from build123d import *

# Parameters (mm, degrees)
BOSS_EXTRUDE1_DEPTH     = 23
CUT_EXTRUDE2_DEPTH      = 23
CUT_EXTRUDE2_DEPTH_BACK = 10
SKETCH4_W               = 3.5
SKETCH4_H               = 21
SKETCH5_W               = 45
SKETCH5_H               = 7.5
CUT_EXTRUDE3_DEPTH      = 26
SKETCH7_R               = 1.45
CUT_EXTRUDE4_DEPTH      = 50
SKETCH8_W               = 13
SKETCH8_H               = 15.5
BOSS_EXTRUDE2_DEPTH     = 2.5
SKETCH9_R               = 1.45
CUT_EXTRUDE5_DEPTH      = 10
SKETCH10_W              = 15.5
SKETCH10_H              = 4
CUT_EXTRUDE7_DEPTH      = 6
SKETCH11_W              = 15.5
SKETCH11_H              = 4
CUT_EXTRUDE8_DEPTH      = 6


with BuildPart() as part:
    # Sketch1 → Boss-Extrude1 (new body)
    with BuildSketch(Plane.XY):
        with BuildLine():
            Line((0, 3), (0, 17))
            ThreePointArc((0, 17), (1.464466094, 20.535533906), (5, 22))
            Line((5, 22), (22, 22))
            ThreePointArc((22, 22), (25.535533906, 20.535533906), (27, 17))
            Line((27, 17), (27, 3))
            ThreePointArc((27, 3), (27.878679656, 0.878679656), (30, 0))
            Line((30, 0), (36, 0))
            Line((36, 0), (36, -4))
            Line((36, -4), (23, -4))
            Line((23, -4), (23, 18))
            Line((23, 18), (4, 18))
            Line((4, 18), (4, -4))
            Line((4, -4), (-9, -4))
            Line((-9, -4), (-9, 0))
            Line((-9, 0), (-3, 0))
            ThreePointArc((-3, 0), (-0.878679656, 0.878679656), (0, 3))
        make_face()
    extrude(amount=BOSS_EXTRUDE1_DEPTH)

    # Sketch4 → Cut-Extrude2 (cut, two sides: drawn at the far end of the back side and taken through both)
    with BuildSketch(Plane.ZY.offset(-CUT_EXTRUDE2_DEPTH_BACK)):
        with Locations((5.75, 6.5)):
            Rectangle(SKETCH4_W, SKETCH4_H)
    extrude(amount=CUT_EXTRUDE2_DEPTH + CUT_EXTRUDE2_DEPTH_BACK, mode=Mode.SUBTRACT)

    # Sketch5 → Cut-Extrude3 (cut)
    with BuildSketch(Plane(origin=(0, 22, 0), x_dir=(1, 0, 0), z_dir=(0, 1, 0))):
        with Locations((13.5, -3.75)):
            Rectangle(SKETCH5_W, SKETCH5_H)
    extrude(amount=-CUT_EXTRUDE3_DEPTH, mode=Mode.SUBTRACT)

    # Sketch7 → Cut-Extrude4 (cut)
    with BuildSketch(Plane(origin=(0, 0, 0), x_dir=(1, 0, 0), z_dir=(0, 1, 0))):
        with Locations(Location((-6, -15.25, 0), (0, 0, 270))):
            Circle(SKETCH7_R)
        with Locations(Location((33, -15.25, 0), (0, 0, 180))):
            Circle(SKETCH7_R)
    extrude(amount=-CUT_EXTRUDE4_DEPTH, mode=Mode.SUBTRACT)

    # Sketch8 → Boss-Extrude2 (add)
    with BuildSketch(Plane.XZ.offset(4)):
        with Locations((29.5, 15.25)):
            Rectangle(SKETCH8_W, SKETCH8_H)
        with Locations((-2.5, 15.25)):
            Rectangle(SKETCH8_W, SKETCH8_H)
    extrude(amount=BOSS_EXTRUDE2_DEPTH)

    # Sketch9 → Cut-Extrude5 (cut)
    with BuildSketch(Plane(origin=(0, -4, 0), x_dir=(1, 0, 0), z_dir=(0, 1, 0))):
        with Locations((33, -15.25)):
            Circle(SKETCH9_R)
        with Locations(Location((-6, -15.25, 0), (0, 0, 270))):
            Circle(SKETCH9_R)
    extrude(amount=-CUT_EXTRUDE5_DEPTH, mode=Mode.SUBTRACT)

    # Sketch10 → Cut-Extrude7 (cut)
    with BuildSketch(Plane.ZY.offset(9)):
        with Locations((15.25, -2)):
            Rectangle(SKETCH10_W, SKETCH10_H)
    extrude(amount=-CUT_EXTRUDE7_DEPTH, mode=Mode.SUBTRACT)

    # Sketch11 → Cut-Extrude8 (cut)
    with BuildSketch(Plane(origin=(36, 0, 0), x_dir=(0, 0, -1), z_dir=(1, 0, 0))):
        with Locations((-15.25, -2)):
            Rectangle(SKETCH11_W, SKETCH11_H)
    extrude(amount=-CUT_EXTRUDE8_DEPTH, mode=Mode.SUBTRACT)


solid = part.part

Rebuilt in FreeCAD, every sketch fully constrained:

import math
import FreeCAD as App
import Part
import Sketcher
from FreeCAD import Vector
Q = App.Units.Quantity

doc = App.newDocument("Part")
params = doc.addObject("Spreadsheet::Sheet", "Params")
for row, (alias, value) in enumerate([
    ("sketch1_radius", "3 mm"),
    ("sketch1_radius2", "5 mm"),
    ("sketch1_width", "6 mm"),
    ("sketch1_width2", "13 mm"),
    ("sketch1_width3", "19 mm"),
    ("pad1_length", "23 mm"),
    ("sketch2_width", "21 mm"),
    ("sketch2_height", "3.5 mm"),
    ("pocket1_length", "23 mm"),
    ("pocket1_length2", "10 mm"),
    ("sketch3_width", "45 mm"),
    ("sketch3_height", "7.5 mm"),
    ("pocket2_length", "26 mm"),
    ("sketch4_diameter", "2.9 mm"),
    ("pocket3_length", "50 mm"),
    ("sketch5_width", "13 mm"),
    ("sketch5_height", "15.5 mm"),
    ("pad2_length", "2.5 mm"),
    ("sketch6_diameter", "2.9 mm"),
    ("pocket4_length", "10 mm"),
    ("sketch7_width", "4 mm"),
    ("sketch7_height", "15.5 mm"),
    ("pocket5_length", "6 mm"),
    ("sketch8_width", "4 mm"),
    ("sketch8_height", "15.5 mm"),
    ("pocket6_length", "6 mm"),
], start=1):
    params.set(f"A{row}", alias)
    params.set(f"B{row}", "=" + value)
    params.setAlias(f"B{row}", alias)

body = doc.addObject("PartDesign::Body", "Body")

# Sketch on XY plane
sketch1 = body.newObject("Sketcher::SketchObject", "Sketch")
sketch1.AttachmentSupport = (doc.getObject("XY_Plane"), [""])
sketch1.MapMode = "FlatFace"
sketch1.addGeometry([
    Part.LineSegment(Vector(0, 17, 0), Vector(0, 3, 0)),  # 0
    Part.ArcOfCircle(Part.Circle(Vector(-3, 3, 0), Vector(0, 0, 1), 3), math.radians(-90), math.radians(0)),  # 1
    Part.LineSegment(Vector(-3, 0, 0), Vector(-9, 0, 0)),  # 2
    Part.LineSegment(Vector(-9, 0, 0), Vector(-9, -4, 0)),  # 3
    Part.LineSegment(Vector(-9, -4, 0), Vector(4, -4, 0)),  # 4
    Part.LineSegment(Vector(4, -4, 0), Vector(4, 18, 0)),  # 5
    Part.LineSegment(Vector(4, 18, 0), Vector(23, 18, 0)),  # 6
    Part.LineSegment(Vector(23, 18, 0), Vector(23, -4, 0)),  # 7
    Part.LineSegment(Vector(23, -4, 0), Vector(36, -4, 0)),  # 8
    Part.LineSegment(Vector(36, -4, 0), Vector(36, 0, 0)),  # 9
    Part.LineSegment(Vector(36, 0, 0), Vector(30, 0, 0)),  # 10
    Part.ArcOfCircle(Part.Circle(Vector(30, 3, 0), Vector(0, 0, 1), 3), math.radians(180), math.radians(270)),  # 11
    Part.LineSegment(Vector(27, 3, 0), Vector(27, 17, 0)),  # 12
    Part.ArcOfCircle(Part.Circle(Vector(22, 17, 0), Vector(0, 0, 1), 5), math.radians(0), math.radians(90)),  # 13
    Part.LineSegment(Vector(22, 22, 0), Vector(5, 22, 0)),  # 14
    Part.ArcOfCircle(Part.Circle(Vector(5, 17, 0), Vector(0, 0, 1), 5), math.radians(90), math.radians(180)),  # 15
], False)
sketch1.addConstraint([
    Sketcher.Constraint("Tangent", 0, 2, 1, 2),
    Sketcher.Constraint("Tangent", 1, 1, 2, 1),
    Sketcher.Constraint("Coincident", 2, 2, 3, 1),
    Sketcher.Constraint("Coincident", 3, 2, 4, 1),
    Sketcher.Constraint("Coincident", 4, 2, 5, 1),
    Sketcher.Constraint("Coincident", 5, 2, 6, 1),
    Sketcher.Constraint("Coincident", 6, 2, 7, 1),
    Sketcher.Constraint("Coincident", 7, 2, 8, 1),
    Sketcher.Constraint("Coincident", 8, 2, 9, 1),
    Sketcher.Constraint("Coincident", 9, 2, 10, 1),
    Sketcher.Constraint("Tangent", 10, 2, 11, 2),
    Sketcher.Constraint("Tangent", 11, 1, 12, 1),
    Sketcher.Constraint("Tangent", 12, 2, 13, 1),
    Sketcher.Constraint("Tangent", 13, 2, 14, 1),
    Sketcher.Constraint("Tangent", 14, 2, 15, 1),
    Sketcher.Constraint("Tangent", 15, 2, 0, 1),
    Sketcher.Constraint("Vertical", 0),
    Sketcher.Constraint("Horizontal", 2),
    Sketcher.Constraint("Vertical", 3),
    Sketcher.Constraint("Horizontal", 4),
    Sketcher.Constraint("Vertical", 5),
    Sketcher.Constraint("Horizontal", 6),
    Sketcher.Constraint("Vertical", 7),
    Sketcher.Constraint("Horizontal", 8),
    Sketcher.Constraint("Vertical", 9),
    Sketcher.Constraint("Horizontal", 10),
    Sketcher.Constraint("Vertical", 12),
    Sketcher.Constraint("Horizontal", 14),
    Sketcher.Constraint("Equal", 1, 11),
    Sketcher.Constraint("Equal", 13, 15),
    Sketcher.Constraint("PointOnObject", 0, 2, -2),
    Sketcher.Constraint("PointOnObject", 1, 1, -1),
    Sketcher.Constraint("PointOnObject", 9, 2, -1),
    Sketcher.Constraint("Horizontal", 4, 2, 7, 2),
    Sketcher.Constraint("Equal", 4, 8),
    Sketcher.Constraint("Equal", 2, 10),
    Sketcher.Constraint("Radius", 1, Q("3 mm")),
    Sketcher.Constraint("Radius", 13, Q("5 mm")),
    Sketcher.Constraint("DistanceX", 2, 2, 2, 1, Q("6 mm")),
    Sketcher.Constraint("DistanceX", 4, 1, 4, 2, Q("13 mm")),
    Sketcher.Constraint("DistanceX", 6, 1, 6, 2, Q("19 mm")),
    Sketcher.Constraint("DistanceY", 0, 2, 0, 1, Q("14 mm")),
    Sketcher.Constraint("DistanceY", 3, 2, 3, 1, Q("4 mm")),
    Sketcher.Constraint("DistanceY", 5, 1, 5, 2, Q("22 mm")),
])
sketch1.setExpression("Constraints[36]", "Params.sketch1_radius")
sketch1.setExpression("Constraints[37]", "Params.sketch1_radius2")
sketch1.setExpression("Constraints[38]", "Params.sketch1_width")
sketch1.setExpression("Constraints[39]", "Params.sketch1_width2")
sketch1.setExpression("Constraints[40]", "Params.sketch1_width3")
pad1 = body.newObject("PartDesign::Pad", "Pad")
pad1.Profile = sketch1
pad1.setExpression("Length", "Params.pad1_length")

# Sketch on YZ plane
sketch2 = body.newObject("Sketcher::SketchObject", "Sketch001")
sketch2.AttachmentSupport = (doc.getObject("YZ_Plane"), [""])
sketch2.MapMode = "FlatFace"
sketch2.addGeometry([
    Part.LineSegment(Vector(17, 4, 0), Vector(-4, 4, 0)),
    Part.LineSegment(Vector(-4, 4, 0), Vector(-4, 7.5, 0)),
    Part.LineSegment(Vector(-4, 7.5, 0), Vector(17, 7.5, 0)),
    Part.LineSegment(Vector(17, 7.5, 0), Vector(17, 4, 0)),
], False)
sketch2.addConstraint([
    Sketcher.Constraint("Coincident", 0, 2, 1, 1),
    Sketcher.Constraint("Coincident", 1, 2, 2, 1),
    Sketcher.Constraint("Coincident", 2, 2, 3, 1),
    Sketcher.Constraint("Coincident", 3, 2, 0, 1),
    Sketcher.Constraint("Horizontal", 0),
    Sketcher.Constraint("Vertical", 1),
    Sketcher.Constraint("Horizontal", 2),
    Sketcher.Constraint("Vertical", 3),
    Sketcher.Constraint("DistanceX", 0, 2, 0, 1, Q("21 mm")),
    Sketcher.Constraint("DistanceY", 1, 1, 1, 2, Q("3.5 mm")),
    Sketcher.Constraint("DistanceX", 0, 2, -1, 1, Q("4 mm")),
    Sketcher.Constraint("DistanceY", -1, 1, 0, 2, Q("4 mm")),
])
sketch2.setExpression("Constraints[8]", "Params.sketch2_width")
sketch2.setExpression("Constraints[9]", "Params.sketch2_height")
pocket1 = body.newObject("PartDesign::Pocket", "Pocket")
pocket1.Profile = sketch2
pocket1.Type = "TwoLengths"
pocket1.setExpression("Length", "Params.pocket1_length")
pocket1.setExpression("Length2", "Params.pocket1_length2")

# Sketch on XZ plane
sketch3 = body.newObject("Sketcher::SketchObject", "Sketch002")
sketch3.AttachmentSupport = (doc.getObject("XZ_Plane"), [""])
sketch3.MapMode = "FlatFace"
sketch3.AttachmentOffset = App.Placement(Vector(0, 0, -22), App.Rotation())
sketch3.addGeometry([
    Part.LineSegment(Vector(-9, 0, 0), Vector(-9, 8, 0)),
    Part.LineSegment(Vector(-9, 8, 0), Vector(36, 8, 0)),
    Part.LineSegment(Vector(36, 8, 0), Vector(36, 0, 0)),
    Part.LineSegment(Vector(36, 0, 0), Vector(-9, 0, 0)),
], False)
sketch3.addConstraint([
    Sketcher.Constraint("Coincident", 0, 2, 1, 1),
    Sketcher.Constraint("Coincident", 1, 2, 2, 1),
    Sketcher.Constraint("Coincident", 2, 2, 3, 1),
    Sketcher.Constraint("Coincident", 3, 2, 0, 1),
    Sketcher.Constraint("Vertical", 0),
    Sketcher.Constraint("Horizontal", 1),
    Sketcher.Constraint("Vertical", 2),
    Sketcher.Constraint("Horizontal", 3),
    Sketcher.Constraint("PointOnObject", 2, 2, -1),
    Sketcher.Constraint("DistanceX", 1, 1, 1, 2, Q("45 mm")),
    Sketcher.Constraint("DistanceY", 0, 1, 0, 2, Q("7.5 mm")),
    Sketcher.Constraint("DistanceX", 0, 2, -1, 1, Q("9 mm")),
])
sketch3.setExpression("Constraints[9]", "Params.sketch3_width")
sketch3.setExpression("Constraints[10]", "Params.sketch3_height")
pocket2 = body.newObject("PartDesign::Pocket", "Pocket001")
pocket2.Profile = sketch3
pocket2.setExpression("Length", "Params.pocket2_length")
pocket2.Reversed = True

# Sketch on XZ plane
sketch4 = body.newObject("Sketcher::SketchObject", "Sketch003")
sketch4.AttachmentSupport = (doc.getObject("XZ_Plane"), [""])
sketch4.MapMode = "FlatFace"
sketch4.addGeometry([
    Part.Circle(Vector(-6, 15.2, 0), Vector(0, 0, 1), 1.4),
    Part.Circle(Vector(33, 15.2, 0), Vector(0, 0, 1), 1.4),
], False)
sketch4.addConstraint([
    Sketcher.Constraint("Equal", 0, 1),
    Sketcher.Constraint("Horizontal", 0, 3, 1, 3),
    Sketcher.Constraint("Diameter", 0, Q("2.9 mm")),
    Sketcher.Constraint("DistanceX", 0, 3, -1, 1, Q("6 mm")),
    Sketcher.Constraint("DistanceX", -1, 1, 1, 3, Q("33 mm")),
    Sketcher.Constraint("DistanceY", -1, 1, 0, 3, Q("15.25 mm")),
])
sketch4.setExpression("Constraints[2]", "Params.sketch4_diameter")
pocket3 = body.newObject("PartDesign::Pocket", "Pocket002")
pocket3.Profile = sketch4
pocket3.setExpression("Length", "Params.pocket3_length")
pocket3.Reversed = True

# Sketch on XZ plane
sketch5 = body.newObject("Sketcher::SketchObject", "Sketch004")
sketch5.AttachmentSupport = (doc.getObject("XZ_Plane"), [""])
sketch5.MapMode = "FlatFace"
sketch5.AttachmentOffset = App.Placement(Vector(0, 0, 4), App.Rotation())
sketch5.addGeometry([
    Part.LineSegment(Vector(23, 23, 0), Vector(23, 8, 0)),  # 0
    Part.LineSegment(Vector(23, 8, 0), Vector(36, 8, 0)),  # 1
    Part.LineSegment(Vector(36, 8, 0), Vector(36, 23, 0)),  # 2
    Part.LineSegment(Vector(36, 23, 0), Vector(23, 23, 0)),  # 3
    Part.LineSegment(Vector(-9, 23, 0), Vector(-9, 8, 0)),  # 4
    Part.LineSegment(Vector(-9, 8, 0), Vector(4, 8, 0)),  # 5
    Part.LineSegment(Vector(4, 8, 0), Vector(4, 23, 0)),  # 6
    Part.LineSegment(Vector(4, 23, 0), Vector(-9, 23, 0)),  # 7
], False)
sketch5.addConstraint([
    Sketcher.Constraint("Coincident", 0, 2, 1, 1),
    Sketcher.Constraint("Coincident", 1, 2, 2, 1),
    Sketcher.Constraint("Coincident", 2, 2, 3, 1),
    Sketcher.Constraint("Coincident", 3, 2, 0, 1),
    Sketcher.Constraint("Coincident", 4, 2, 5, 1),
    Sketcher.Constraint("Coincident", 5, 2, 6, 1),
    Sketcher.Constraint("Coincident", 6, 2, 7, 1),
    Sketcher.Constraint("Coincident", 7, 2, 4, 1),
    Sketcher.Constraint("Vertical", 0),
    Sketcher.Constraint("Horizontal", 1),
    Sketcher.Constraint("Vertical", 2),
    Sketcher.Constraint("Horizontal", 3),
    Sketcher.Constraint("Vertical", 4),
    Sketcher.Constraint("Horizontal", 5),
    Sketcher.Constraint("Vertical", 6),
    Sketcher.Constraint("Horizontal", 7),
    Sketcher.Constraint("Horizontal", 1, 2, 4, 2),
    Sketcher.Constraint("Horizontal", 3, 2, 6, 2),
    Sketcher.Constraint("Equal", 3, 5),
    Sketcher.Constraint("DistanceX", 1, 1, 1, 2, Q("13 mm")),
    Sketcher.Constraint("DistanceY", 0, 2, 0, 1, Q("15.5 mm")),
    Sketcher.Constraint("DistanceX", -1, 1, 0, 2, Q("23 mm")),
    Sketcher.Constraint("DistanceY", -1, 1, 2, 2, Q("23 mm")),
    Sketcher.Constraint("DistanceX", 4, 2, -1, 1, Q("9 mm")),
])
sketch5.setExpression("Constraints[19]", "Params.sketch5_width")
sketch5.setExpression("Constraints[20]", "Params.sketch5_height")
pad2 = body.newObject("PartDesign::Pad", "Pad001")
pad2.Profile = sketch5
pad2.setExpression("Length", "Params.pad2_length")

# Sketch on XZ plane
sketch6 = body.newObject("Sketcher::SketchObject", "Sketch005")
sketch6.AttachmentSupport = (doc.getObject("XZ_Plane"), [""])
sketch6.MapMode = "FlatFace"
sketch6.AttachmentOffset = App.Placement(Vector(0, 0, 4), App.Rotation())
sketch6.addGeometry([
    Part.Circle(Vector(33, 15.2, 0), Vector(0, 0, 1), 1.4),
    Part.Circle(Vector(-6, 15.2, 0), Vector(0, 0, 1), 1.4),
], False)
sketch6.addConstraint([
    Sketcher.Constraint("Equal", 0, 1),
    Sketcher.Constraint("Horizontal", 0, 3, 1, 3),
    Sketcher.Constraint("Diameter", 0, Q("2.9 mm")),
    Sketcher.Constraint("DistanceX", -1, 1, 0, 3, Q("33 mm")),
    Sketcher.Constraint("DistanceX", 1, 3, -1, 1, Q("6 mm")),
    Sketcher.Constraint("DistanceY", -1, 1, 0, 3, Q("15.25 mm")),
])
sketch6.setExpression("Constraints[2]", "Params.sketch6_diameter")
pocket4 = body.newObject("PartDesign::Pocket", "Pocket003")
pocket4.Profile = sketch6
pocket4.setExpression("Length", "Params.pocket4_length")
pocket4.Reversed = True

# Sketch on YZ plane
sketch7 = body.newObject("Sketcher::SketchObject", "Sketch006")
sketch7.AttachmentSupport = (doc.getObject("YZ_Plane"), [""])
sketch7.MapMode = "FlatFace"
sketch7.AttachmentOffset = App.Placement(Vector(0, 0, -9), App.Rotation())
sketch7.addGeometry([
    Part.LineSegment(Vector(0, 7.5, 0), Vector(-4, 7.5, 0)),
    Part.LineSegment(Vector(-4, 7.5, 0), Vector(-4, 23, 0)),
    Part.LineSegment(Vector(-4, 23, 0), Vector(0, 23, 0)),
    Part.LineSegment(Vector(0, 23, 0), Vector(0, 7.5, 0)),
], False)
sketch7.addConstraint([
    Sketcher.Constraint("Coincident", 0, 2, 1, 1),
    Sketcher.Constraint("Coincident", 1, 2, 2, 1),
    Sketcher.Constraint("Coincident", 2, 2, 3, 1),
    Sketcher.Constraint("Coincident", 3, 2, 0, 1),
    Sketcher.Constraint("Horizontal", 0),
    Sketcher.Constraint("Vertical", 1),
    Sketcher.Constraint("Horizontal", 2),
    Sketcher.Constraint("Vertical", 3),
    Sketcher.Constraint("PointOnObject", 2, 2, -2),
    Sketcher.Constraint("DistanceX", 0, 2, 0, 1, Q("4 mm")),
    Sketcher.Constraint("DistanceY", 1, 1, 1, 2, Q("15.5 mm")),
    Sketcher.Constraint("DistanceY", -1, 1, 1, 2, Q("23 mm")),
])
sketch7.setExpression("Constraints[9]", "Params.sketch7_width")
sketch7.setExpression("Constraints[10]", "Params.sketch7_height")
pocket5 = body.newObject("PartDesign::Pocket", "Pocket004")
pocket5.Profile = sketch7
pocket5.setExpression("Length", "Params.pocket5_length")
pocket5.Reversed = True

# Sketch on YZ plane
sketch8 = body.newObject("Sketcher::SketchObject", "Sketch007")
sketch8.AttachmentSupport = (doc.getObject("YZ_Plane"), [""])
sketch8.MapMode = "FlatFace"
sketch8.AttachmentOffset = App.Placement(Vector(0, 0, 36), App.Rotation())
sketch8.addGeometry([
    Part.LineSegment(Vector(0, 23, 0), Vector(-4, 23, 0)),
    Part.LineSegment(Vector(-4, 23, 0), Vector(-4, 7.5, 0)),
    Part.LineSegment(Vector(-4, 7.5, 0), Vector(0, 7.5, 0)),
    Part.LineSegment(Vector(0, 7.5, 0), Vector(0, 23, 0)),
], False)
sketch8.addConstraint([
    Sketcher.Constraint("Coincident", 0, 2, 1, 1),
    Sketcher.Constraint("Coincident", 1, 2, 2, 1),
    Sketcher.Constraint("Coincident", 2, 2, 3, 1),
    Sketcher.Constraint("Coincident", 3, 2, 0, 1),
    Sketcher.Constraint("Horizontal", 0),
    Sketcher.Constraint("Vertical", 1),
    Sketcher.Constraint("Horizontal", 2),
    Sketcher.Constraint("Vertical", 3),
    Sketcher.Constraint("PointOnObject", 2, 2, -2),
    Sketcher.Constraint("DistanceX", 0, 2, 0, 1, Q("4 mm")),
    Sketcher.Constraint("DistanceY", 1, 2, 1, 1, Q("15.5 mm")),
    Sketcher.Constraint("DistanceY", -1, 1, 0, 2, Q("23 mm")),
])
sketch8.setExpression("Constraints[9]", "Params.sketch8_width")
sketch8.setExpression("Constraints[10]", "Params.sketch8_height")
pocket6 = body.newObject("PartDesign::Pocket", "Pocket005")
pocket6.Profile = sketch8
pocket6.setExpression("Length", "Params.pocket6_length")

doc.recompute()
